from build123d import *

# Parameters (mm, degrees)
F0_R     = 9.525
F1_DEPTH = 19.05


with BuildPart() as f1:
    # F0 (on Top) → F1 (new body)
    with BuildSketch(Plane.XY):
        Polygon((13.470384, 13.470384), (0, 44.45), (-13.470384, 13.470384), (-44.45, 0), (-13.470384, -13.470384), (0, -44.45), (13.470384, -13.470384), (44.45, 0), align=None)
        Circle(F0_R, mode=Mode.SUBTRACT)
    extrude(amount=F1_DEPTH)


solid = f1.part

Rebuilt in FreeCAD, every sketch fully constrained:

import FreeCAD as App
import Part
import Sketcher
from FreeCAD import Vector
Q = App.Units.Quantity


def add_polygon(sketch, points):
    """Adds a closed chain of lines whose ends are joined by coincident constraints."""
    first, n = sketch.GeometryCount, len(points)
    for a, b in zip(points, points[1:] + points[:1]):
        sketch.addGeometry(Part.LineSegment(App.Vector(*a, 0), App.Vector(*b, 0)), False)
    for i in range(n):
        sketch.addConstraint(Sketcher.Constraint("Coincident", first + i, 2, first + (i + 1) % n, 1))

doc = App.newDocument("Part")
body = doc.addObject("PartDesign::Body", "Body")

sketch1 = body.newObject("Sketcher::SketchObject", "Sketch")
sketch1.AttachmentSupport = (doc.getObject("XY_Plane"), [""])
sketch1.MapMode = "FlatFace"
add_polygon(sketch1, [(13.470384, 13.470384), (0, 44.45), (-13.470384, 13.470384), (-44.45, 0), (-13.470384, -13.470384), (0, -44.45), (13.470384, -13.470384), (44.45, 0)])
sketch1.addGeometry(Part.Circle(Vector(0, 0, 0), Vector(0, 0, 1), 9.525), False)
sketch1.addConstraint(Sketcher.Constraint("Coincident", 8, 3, -1, 1))
sketch1.addConstraint(Sketcher.Constraint("Symmetric", 0, 2, 4, 2, -1, 1))
sketch1.addConstraint(Sketcher.Constraint("Symmetric", 1, 2, 5, 2, -1, 1))
sketch1.addConstraint(Sketcher.Constraint("Symmetric", 2, 2, 6, 2, -1, 1))
sketch1.addConstraint(Sketcher.Constraint("Symmetric", 3, 2, 7, 2, -1, 1))
sketch1.addConstraint(Sketcher.Constraint("Symmetric", 3, 2, 5, 2, -2))
sketch1.addConstraint(Sketcher.Constraint("PointOnObject", 0, 2, -2))
sketch1.addConstraint(Sketcher.Constraint("PointOnObject", 2, 2, -1))
sketch1.addConstraint(Sketcher.Constraint("Perpendicular", 0, 2))
sketch1.addConstraint(Sketcher.Constraint("Equal", 1, 2))
sketch1.addConstraint(Sketcher.Constraint("Diameter", 8, Q("0.75 in")))
sketch1.addConstraint(Sketcher.Constraint("DistanceY", 4, 2, 0, 2, Q("3.5 in")))
sketch1.addConstraint(Sketcher.Constraint("Distance", 0, Q("33.781472 mm")))
pad1 = body.newObject("PartDesign::Pad", "Pad")
pad1.Profile = sketch1
pad1.Length = Q("0.75 in")

doc.recompute()
